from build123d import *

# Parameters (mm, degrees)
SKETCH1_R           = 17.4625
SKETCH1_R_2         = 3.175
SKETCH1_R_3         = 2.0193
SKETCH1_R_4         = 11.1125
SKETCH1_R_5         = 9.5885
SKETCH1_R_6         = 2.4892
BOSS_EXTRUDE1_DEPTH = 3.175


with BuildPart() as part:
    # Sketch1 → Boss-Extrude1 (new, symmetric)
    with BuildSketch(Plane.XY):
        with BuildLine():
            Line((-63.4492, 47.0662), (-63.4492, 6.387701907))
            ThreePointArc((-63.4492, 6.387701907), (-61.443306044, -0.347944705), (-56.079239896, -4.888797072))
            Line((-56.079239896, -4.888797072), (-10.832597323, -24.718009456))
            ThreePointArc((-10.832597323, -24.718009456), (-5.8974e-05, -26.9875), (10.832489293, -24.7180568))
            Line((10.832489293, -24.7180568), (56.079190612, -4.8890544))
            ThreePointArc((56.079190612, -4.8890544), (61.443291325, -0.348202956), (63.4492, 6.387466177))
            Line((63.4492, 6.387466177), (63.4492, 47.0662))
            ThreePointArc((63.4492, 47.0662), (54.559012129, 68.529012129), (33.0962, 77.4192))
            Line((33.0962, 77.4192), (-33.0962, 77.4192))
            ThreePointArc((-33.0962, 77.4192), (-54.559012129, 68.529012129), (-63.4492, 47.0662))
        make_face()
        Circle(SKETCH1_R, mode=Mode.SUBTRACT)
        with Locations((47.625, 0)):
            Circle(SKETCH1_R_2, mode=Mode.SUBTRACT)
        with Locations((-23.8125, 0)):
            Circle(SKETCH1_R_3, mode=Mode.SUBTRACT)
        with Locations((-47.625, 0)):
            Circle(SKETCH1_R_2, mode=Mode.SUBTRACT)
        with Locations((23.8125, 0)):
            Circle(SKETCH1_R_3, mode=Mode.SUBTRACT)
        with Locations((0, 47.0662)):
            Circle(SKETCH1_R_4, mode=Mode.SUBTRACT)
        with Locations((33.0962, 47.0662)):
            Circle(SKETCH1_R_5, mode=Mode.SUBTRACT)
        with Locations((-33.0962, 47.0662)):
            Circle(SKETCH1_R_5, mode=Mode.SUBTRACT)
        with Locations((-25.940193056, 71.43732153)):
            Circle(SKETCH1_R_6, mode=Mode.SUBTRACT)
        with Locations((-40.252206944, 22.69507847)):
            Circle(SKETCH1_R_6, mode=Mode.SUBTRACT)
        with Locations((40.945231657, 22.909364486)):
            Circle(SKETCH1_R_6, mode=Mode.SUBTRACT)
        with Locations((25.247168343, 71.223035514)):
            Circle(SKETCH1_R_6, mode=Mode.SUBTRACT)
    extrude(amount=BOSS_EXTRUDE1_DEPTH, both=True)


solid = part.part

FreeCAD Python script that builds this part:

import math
import FreeCAD as App
import Part
import Sketcher
Q = App.Units.Quantity

doc = App.newDocument("Part")
body = doc.addObject("PartDesign::Body", "Body")

sketch1 = body.newObject("Sketcher::SketchObject", "Sketch")
sketch1.AttachmentSupport = (doc.getObject("XY_Plane"), [""])
sketch1.MapMode = "FlatFace"
sketch1.addGeometry([
    Part.LineSegment(App.Vector(-63.4, 47.1, 0), App.Vector(-63.4, 6.4, 0)),
    Part.ArcOfCircle(Part.Circle(App.Vector(-51.1, 6.4, 0), App.Vector(0, 0, 1), 12.3), math.radians(-180), math.radians(-114)),
    Part.LineSegment(App.Vector(-56.1, -4.9, 0), App.Vector(-10.8, -24.7, 0)),
    Part.ArcOfCircle(Part.Circle(App.Vector(0, 0, 0), App.Vector(0, 0, 1), 27), math.radians(-114), math.radians(-66)),
    Part.LineSegment(App.Vector(10.8, -24.7, 0), App.Vector(56.1, -4.9, 0)),
    Part.ArcOfCircle(Part.Circle(App.Vector(51.1, 6.4, 0), App.Vector(0, 0, 1), 12.3), math.radians(-66), math.radians(0)),
    Part.LineSegment(App.Vector(63.4, 6.4, 0), App.Vector(63.4, 47.1, 0)),
    Part.ArcOfCircle(Part.Circle(App.Vector(33.1, 47.1, 0), App.Vector(0, 0, 1), 30.4), math.radians(0), math.radians(90)),
    Part.LineSegment(App.Vector(33.1, 77.4, 0), App.Vector(-33.1, 77.4, 0)),
    Part.ArcOfCircle(Part.Circle(App.Vector(-33.1, 47.1, 0), App.Vector(0, 0, 1), 30.4), math.radians(90), math.radians(180)),
    Part.Circle(App.Vector(-47.6, 0, 0), App.Vector(0, 0, 1), 3.2),
    Part.Circle(App.Vector(-23.8, 0, 0), App.Vector(0, 0, 1), 2),
    Part.Circle(App.Vector(0, 0, 0), App.Vector(0, 0, 1), 17.5),
    Part.Circle(App.Vector(-40.3, 22.7, 0), App.Vector(0, 0, 1), 2.5),
    Part.Circle(App.Vector(23.8, 0, 0), App.Vector(0, 0, 1), 2),
    Part.Circle(App.Vector(47.6, 0, 0), App.Vector(0, 0, 1), 3.2),
    Part.Circle(App.Vector(40.9, 22.9, 0), App.Vector(0, 0, 1), 2.5),
    Part.Circle(App.Vector(-33.1, 47.1, 0), App.Vector(0, 0, 1), 9.6),
    Part.Circle(App.Vector(0, 47.1, 0), App.Vector(0, 0, 1), 11.1),
    Part.Circle(App.Vector(-25.9, 71.4, 0), App.Vector(0, 0, 1), 2.5),
    Part.Circle(App.Vector(33.1, 47.1, 0), App.Vector(0, 0, 1), 9.6),
    Part.Circle(App.Vector(25.2, 71.2, 0), App.Vector(0, 0, 1), 2.5),
], False)
sketch1.addConstraint([
    Sketcher.Constraint("Tangent", 0, 2, 1, 1),
    Sketcher.Constraint("Tangent", 1, 2, 2, 1),
    Sketcher.Constraint("Tangent", 2, 2, 3, 1),
    Sketcher.Constraint("Tangent", 3, 2, 4, 1),
    Sketcher.Constraint("Tangent", 4, 2, 5, 1),
    Sketcher.Constraint("Tangent", 5, 2, 6, 1),
    Sketcher.Constraint("Tangent", 6, 2, 7, 1),
    Sketcher.Constraint("Tangent", 7, 2, 8, 1),
    Sketcher.Constraint("Tangent", 8, 2, 9, 1),
    Sketcher.Constraint("Tangent", 9, 2, 0, 1),
    Sketcher.Constraint("Vertical", 0),
    Sketcher.Constraint("Vertical", 6),
    Sketcher.Constraint("Horizontal", 8),
    Sketcher.Constraint("Coincident", 3, 3, -1, 1),
    Sketcher.Constraint("Coincident", 12, 3, -1, 1),
    Sketcher.Constraint("Coincident", 17, 3, 9, 3),
    Sketcher.Constraint("Coincident", 20, 3, 7, 3),
    Sketcher.Constraint("Equal", 1, 5),
    Sketcher.Constraint("Equal", 7, 9),
    Sketcher.Constraint("Equal", 11, 14),
    Sketcher.Constraint("Equal", 10, 15),
    Sketcher.Constraint("Equal", 13, 16),
    Sketcher.Constraint("Equal", 16, 19),
    Sketcher.Constraint("Equal", 17, 20),
    Sketcher.Constraint("Equal", 19, 21),
    Sketcher.Constraint("Symmetric", 11, 3, 14, 3, -1, 1),
    Sketcher.Constraint("Symmetric", 10, 3, 15, 3, -1, 1),
    Sketcher.Constraint("PointOnObject", 10, 3, -1),
    Sketcher.Constraint("PointOnObject", 11, 3, -1),
    Sketcher.Constraint("PointOnObject", 18, 3, -2),
    Sketcher.Constraint("Horizontal", 17, 3, 18, 3),
    Sketcher.Constraint("Diameter", 10, Q("0.25 in")),
    Sketcher.Constraint("Diameter", 11, Q("0.159 in")),
    Sketcher.Constraint("Diameter", 12, Q("1.375 in")),
    Sketcher.Constraint("Diameter", 13, Q("0.196 in")),
    Sketcher.Constraint("Diameter", 17, Q("0.755 in")),
    Sketcher.Constraint("Diameter", 18, Q("0.875 in")),
    Sketcher.Constraint("Radius", 3, Q("1.0625 in")),
    Sketcher.Constraint("Radius", 7, Q("1.195 in")),
    Sketcher.Constraint("DistanceX", 8, 2, 8, 1, Q("2.606 in")),
    Sketcher.Constraint("DistanceX", -1, 1, 7, 3, Q("1.303 in")),
    Sketcher.Constraint("DistanceY", -1, 1, 7, 3, Q("1.853 in")),
    Sketcher.Constraint("DistanceX", 10, 3, -1, 1, Q("1.875 in")),
    Sketcher.Constraint("DistanceX", 11, 3, -1, 1, Q("0.9375 in")),
    Sketcher.Constraint("DistanceY", 0, 2, 0, 1, Q("40.678498 mm")),
    Sketcher.Constraint("Radius", 1, Q("12.311854 mm")),
    Sketcher.Constraint("DistanceY", 5, 3, 16, 3, Q("16.521898 mm")),
    Sketcher.Constraint("DistanceX", 3, 2, 4, 2, Q("45.246701 mm")),
    Sketcher.Constraint("DistanceY", -1, 1, 13, 3, Q("22.695078 mm")),
    Sketcher.Constraint("DistanceX", -1, 1, 16, 3, Q("40.945232 mm")),
    Sketcher.Constraint("DistanceY", -1, 1, 19, 3, Q("71.437322 mm")),
    Sketcher.Constraint("DistanceX", -1, 1, 21, 3, Q("25.247168 mm")),
    Sketcher.Constraint("DistanceX", 1, 3, 13, 3, Q("10.885139 mm")),
    Sketcher.Constraint("DistanceY", 16, 3, 21, 3, Q("48.313671 mm")),
    Sketcher.Constraint("DistanceX", 19, 3, 21, 3, Q("51.187361 mm")),
])
pad1 = body.newObject("PartDesign::Pad", "Pad")
pad1.Profile = sketch1
pad1.Length = Q("0.25 in")
pad1.Midplane = True

doc.recompute()
